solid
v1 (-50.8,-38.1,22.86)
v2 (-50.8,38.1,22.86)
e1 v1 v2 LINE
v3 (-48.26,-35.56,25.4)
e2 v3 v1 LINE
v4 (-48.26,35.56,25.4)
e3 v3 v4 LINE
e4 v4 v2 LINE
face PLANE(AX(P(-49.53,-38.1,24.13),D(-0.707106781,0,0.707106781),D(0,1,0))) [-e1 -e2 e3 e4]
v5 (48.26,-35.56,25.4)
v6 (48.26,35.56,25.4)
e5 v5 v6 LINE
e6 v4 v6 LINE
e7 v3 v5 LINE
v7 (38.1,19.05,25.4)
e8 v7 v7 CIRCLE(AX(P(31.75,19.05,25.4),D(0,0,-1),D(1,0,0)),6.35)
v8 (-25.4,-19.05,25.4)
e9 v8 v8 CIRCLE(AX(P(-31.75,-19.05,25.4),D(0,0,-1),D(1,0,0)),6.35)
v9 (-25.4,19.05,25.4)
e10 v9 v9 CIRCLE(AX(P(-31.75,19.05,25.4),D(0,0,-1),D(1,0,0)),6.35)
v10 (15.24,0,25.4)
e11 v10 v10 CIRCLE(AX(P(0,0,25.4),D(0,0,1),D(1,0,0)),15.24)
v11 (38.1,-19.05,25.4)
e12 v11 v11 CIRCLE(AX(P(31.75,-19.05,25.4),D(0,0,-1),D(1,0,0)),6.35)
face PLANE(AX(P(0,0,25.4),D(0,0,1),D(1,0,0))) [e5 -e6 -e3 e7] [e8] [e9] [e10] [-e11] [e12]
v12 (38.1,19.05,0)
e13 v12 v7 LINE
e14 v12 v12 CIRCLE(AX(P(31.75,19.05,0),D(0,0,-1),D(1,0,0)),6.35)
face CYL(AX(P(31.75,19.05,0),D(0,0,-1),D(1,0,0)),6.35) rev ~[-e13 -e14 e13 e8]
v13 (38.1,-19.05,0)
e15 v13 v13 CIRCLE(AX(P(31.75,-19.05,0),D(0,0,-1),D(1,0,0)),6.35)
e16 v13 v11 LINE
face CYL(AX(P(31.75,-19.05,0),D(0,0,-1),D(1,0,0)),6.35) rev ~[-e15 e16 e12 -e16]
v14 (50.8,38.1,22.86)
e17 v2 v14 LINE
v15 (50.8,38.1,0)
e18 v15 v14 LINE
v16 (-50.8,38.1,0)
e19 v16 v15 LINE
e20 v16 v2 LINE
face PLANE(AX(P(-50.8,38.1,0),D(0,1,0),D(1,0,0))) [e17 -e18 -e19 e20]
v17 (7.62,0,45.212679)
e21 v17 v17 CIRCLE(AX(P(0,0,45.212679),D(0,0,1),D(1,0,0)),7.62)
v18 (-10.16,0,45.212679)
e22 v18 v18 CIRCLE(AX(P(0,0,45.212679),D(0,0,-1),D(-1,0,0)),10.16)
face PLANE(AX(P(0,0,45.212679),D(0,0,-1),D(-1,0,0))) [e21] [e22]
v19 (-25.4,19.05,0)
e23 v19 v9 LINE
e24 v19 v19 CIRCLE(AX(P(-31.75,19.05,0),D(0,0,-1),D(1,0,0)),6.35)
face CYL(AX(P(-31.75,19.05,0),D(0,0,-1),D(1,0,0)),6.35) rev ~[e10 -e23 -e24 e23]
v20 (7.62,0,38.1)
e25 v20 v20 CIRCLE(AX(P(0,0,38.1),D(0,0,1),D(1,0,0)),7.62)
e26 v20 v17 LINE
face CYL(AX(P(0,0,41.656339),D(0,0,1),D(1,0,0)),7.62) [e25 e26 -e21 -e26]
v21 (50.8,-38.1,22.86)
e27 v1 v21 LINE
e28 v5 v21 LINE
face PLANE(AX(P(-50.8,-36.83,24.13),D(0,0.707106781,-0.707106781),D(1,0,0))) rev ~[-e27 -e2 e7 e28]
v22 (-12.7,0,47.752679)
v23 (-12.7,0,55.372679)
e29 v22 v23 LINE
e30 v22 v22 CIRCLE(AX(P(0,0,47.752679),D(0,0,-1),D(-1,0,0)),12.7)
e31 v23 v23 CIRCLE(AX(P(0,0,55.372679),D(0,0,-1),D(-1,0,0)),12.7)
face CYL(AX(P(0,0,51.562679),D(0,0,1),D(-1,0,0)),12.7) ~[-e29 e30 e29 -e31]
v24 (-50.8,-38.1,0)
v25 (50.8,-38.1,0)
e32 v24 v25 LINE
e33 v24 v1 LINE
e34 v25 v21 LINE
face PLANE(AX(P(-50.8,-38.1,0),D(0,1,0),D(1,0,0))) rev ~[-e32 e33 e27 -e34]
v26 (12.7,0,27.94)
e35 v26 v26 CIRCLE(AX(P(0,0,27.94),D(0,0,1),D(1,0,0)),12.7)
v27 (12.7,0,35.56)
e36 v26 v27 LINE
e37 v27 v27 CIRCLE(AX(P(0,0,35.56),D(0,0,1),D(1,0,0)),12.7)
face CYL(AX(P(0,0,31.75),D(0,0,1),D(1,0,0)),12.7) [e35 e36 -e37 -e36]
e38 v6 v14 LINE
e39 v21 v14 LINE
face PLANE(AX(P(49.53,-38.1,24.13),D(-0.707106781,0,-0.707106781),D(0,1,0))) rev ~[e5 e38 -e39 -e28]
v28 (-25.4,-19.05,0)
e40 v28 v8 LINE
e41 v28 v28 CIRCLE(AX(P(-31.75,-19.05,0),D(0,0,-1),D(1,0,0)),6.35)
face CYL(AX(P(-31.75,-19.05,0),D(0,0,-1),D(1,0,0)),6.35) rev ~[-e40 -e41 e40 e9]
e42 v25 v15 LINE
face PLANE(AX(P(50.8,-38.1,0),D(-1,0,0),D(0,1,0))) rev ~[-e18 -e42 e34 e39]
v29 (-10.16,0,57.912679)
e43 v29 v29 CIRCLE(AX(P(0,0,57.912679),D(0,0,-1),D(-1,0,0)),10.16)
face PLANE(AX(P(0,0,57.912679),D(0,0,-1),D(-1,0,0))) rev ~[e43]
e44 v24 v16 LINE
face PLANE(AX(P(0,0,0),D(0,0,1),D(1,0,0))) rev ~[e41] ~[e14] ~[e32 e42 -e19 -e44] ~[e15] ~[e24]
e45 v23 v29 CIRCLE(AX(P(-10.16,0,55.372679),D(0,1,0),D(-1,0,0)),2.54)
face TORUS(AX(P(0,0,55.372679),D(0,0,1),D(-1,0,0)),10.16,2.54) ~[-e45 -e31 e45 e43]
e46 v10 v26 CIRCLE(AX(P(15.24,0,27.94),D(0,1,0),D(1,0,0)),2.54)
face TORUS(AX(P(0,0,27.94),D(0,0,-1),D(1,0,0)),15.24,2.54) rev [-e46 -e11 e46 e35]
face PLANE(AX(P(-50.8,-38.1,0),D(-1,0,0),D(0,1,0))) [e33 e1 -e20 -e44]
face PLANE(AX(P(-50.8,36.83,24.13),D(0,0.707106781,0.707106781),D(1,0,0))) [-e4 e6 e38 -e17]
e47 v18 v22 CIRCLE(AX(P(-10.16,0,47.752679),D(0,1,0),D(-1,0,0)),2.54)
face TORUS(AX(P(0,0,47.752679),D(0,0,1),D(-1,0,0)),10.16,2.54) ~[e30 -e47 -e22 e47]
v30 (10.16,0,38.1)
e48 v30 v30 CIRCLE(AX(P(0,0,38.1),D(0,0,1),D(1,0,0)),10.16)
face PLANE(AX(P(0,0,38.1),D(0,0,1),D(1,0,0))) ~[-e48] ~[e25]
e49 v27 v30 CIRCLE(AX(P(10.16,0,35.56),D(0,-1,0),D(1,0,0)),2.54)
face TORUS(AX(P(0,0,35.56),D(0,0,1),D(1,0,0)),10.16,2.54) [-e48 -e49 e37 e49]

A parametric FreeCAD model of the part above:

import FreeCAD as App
import Part
import Sketcher
from FreeCAD import Vector
Q = App.Units.Quantity


def edges_at(feature, points):
    """Names of the edges that pass closest to the given points."""
    edges = feature.Shape.Edges
    near = lambda p: min(range(len(edges)), key=lambda i: edges[i].distToShape(Part.Vertex(*p))[0])
    return sorted({f"Edge{near(p) + 1}" for p in points})

doc = App.newDocument("Part")
params = doc.addObject("Spreadsheet::Sheet", "Params")
for row, (alias, value) in enumerate([
    ("sketch1_width", "4 in"),
    ("sketch1_height", "3 in"),
    ("pad1_length", "1 in"),
    ("sketch2_diameter", "0.5 in"),
    ("sketch3_width", "0.5 in"),
    ("revolution_angle", "360 deg"),
    ("sketch4_width", "0.3 in"),
    ("revolution2_angle", "360 deg"),
    ("sketch5_width", "0.5 in"),
    ("revolution3_angle", "360 deg"),
    ("fillet_radius", "0.1 in"),
    ("chamfer_size", "0.1 in"),
    ("fillet2_radius", "0.1 in"),
], start=1):
    params.set(f"A{row}", alias)
    params.set(f"B{row}", "=" + value)
    params.setAlias(f"B{row}", alias)

body = doc.addObject("PartDesign::Body", "Body")

# Sketch on XY plane
sketch1 = doc.addObject("Sketcher::SketchObject", "Sketch")
body.addObject(sketch1)
sketch1.AttachmentSupport = (doc.XY_Plane, [""])
sketch1.MapMode = "FlatFace"
sketch1.addGeometry(Part.LineSegment(Vector(-51, 38, 0), Vector(-51, -38, 0)), False)
sketch1.addGeometry(Part.LineSegment(Vector(-51, -38, 0), Vector(51, -38, 0)), False)
sketch1.addGeometry(Part.LineSegment(Vector(51, -38, 0), Vector(51, 38, 0)), False)
sketch1.addGeometry(Part.LineSegment(Vector(51, 38, 0), Vector(-51, 38, 0)), False)
sketch1.addConstraint(Sketcher.Constraint("Coincident", 0, 2, 1, 1))
sketch1.addConstraint(Sketcher.Constraint("Coincident", 1, 2, 2, 1))
sketch1.addConstraint(Sketcher.Constraint("Coincident", 2, 2, 3, 1))
sketch1.addConstraint(Sketcher.Constraint("Coincident", 3, 2, 0, 1))
sketch1.addConstraint(Sketcher.Constraint("Vertical", 0))
sketch1.addConstraint(Sketcher.Constraint("Horizontal", 1))
sketch1.addConstraint(Sketcher.Constraint("Vertical", 2))
sketch1.addConstraint(Sketcher.Constraint("Horizontal", 3))
sketch1.addConstraint(Sketcher.Constraint("Symmetric", 0, 2, 2, 2, -1, 1))
sketch1.addConstraint(Sketcher.Constraint("DistanceX", 1, 1, 1, 2, Q("4 in")))
sketch1.addConstraint(Sketcher.Constraint("DistanceY", 0, 2, 0, 1, Q("3 in")))
sketch1.setExpression("Constraints[9]", "Params.sketch1_width")
sketch1.setExpression("Constraints[10]", "Params.sketch1_height")
pad1 = doc.addObject("PartDesign::Pad", "Pad")
body.addObject(pad1)
pad1.Profile = sketch1
pad1.setExpression("Length", "Params.pad1_length")

# Sketch on XY plane
sketch2 = doc.addObject("Sketcher::SketchObject", "Sketch001")
body.addObject(sketch2)
sketch2.AttachmentSupport = (doc.XY_Plane, [""])
sketch2.MapMode = "FlatFace"
sketch2.addGeometry(Part.Circle(Vector(32, -19, 0), Vector(0, 0, 1), 6), False)
sketch2.addGeometry(Part.Circle(Vector(32, 19, 0), Vector(0, 0, 1), 6), False)
sketch2.addGeometry(Part.Circle(Vector(-32, 19, 0), Vector(0, 0, 1), 6), False)
sketch2.addGeometry(Part.Circle(Vector(-32, -19, 0), Vector(0, 0, 1), 6), False)
sketch2.addConstraint(Sketcher.Constraint("Equal", 0, 1))
sketch2.addConstraint(Sketcher.Constraint("Equal", 1, 2))
sketch2.addConstraint(Sketcher.Constraint("Equal", 2, 3))
sketch2.addConstraint(Sketcher.Constraint("Symmetric", 0, 3, 2, 3, -1, 1))
sketch2.addConstraint(Sketcher.Constraint("Symmetric", 1, 3, 3, 3, -1, 1))
sketch2.addConstraint(Sketcher.Constraint("Symmetric", 1, 3, 2, 3, -2))
sketch2.addConstraint(Sketcher.Constraint("Diameter", 0, Q("0.5 in")))
sketch2.addConstraint(Sketcher.Constraint("DistanceY", 0, 3, 1, 3, Q("1.5 in")))
sketch2.addConstraint(Sketcher.Constraint("DistanceX", 2, 3, 1, 3, Q("2.5 in")))
sketch2.setExpression("Constraints[6]", "Params.sketch2_diameter")
pocket1 = doc.addObject("PartDesign::Pocket", "Pocket")
body.addObject(pocket1)
pocket1.Profile = sketch2
pocket1.Type = "ThroughAll"
pocket1.Reversed = True

# Sketch on XZ plane
sketch3 = doc.addObject("Sketcher::SketchObject", "Sketch002")
body.addObject(sketch3)
sketch3.AttachmentSupport = (doc.XZ_Plane, [""])
sketch3.MapMode = "FlatFace"
sketch3.addGeometry(Part.LineSegment(Vector(0, 38, 0), Vector(0, 25, 0)), False)
sketch3.addGeometry(Part.LineSegment(Vector(0, 25, 0), Vector(13, 25, 0)), False)
sketch3.addGeometry(Part.LineSegment(Vector(13, 25, 0), Vector(13, 38, 0)), False)
sketch3.addGeometry(Part.LineSegment(Vector(13, 38, 0), Vector(0, 38, 0)), False)
sketch3.addConstraint(Sketcher.Constraint("Coincident", 0, 2, 1, 1))
sketch3.addConstraint(Sketcher.Constraint("Coincident", 1, 2, 2, 1))
sketch3.addConstraint(Sketcher.Constraint("Coincident", 2, 2, 3, 1))
sketch3.addConstraint(Sketcher.Constraint("Coincident", 3, 2, 0, 1))
sketch3.addConstraint(Sketcher.Constraint("Vertical", 0))
sketch3.addConstraint(Sketcher.Constraint("Horizontal", 1))
sketch3.addConstraint(Sketcher.Constraint("Vertical", 2))
sketch3.addConstraint(Sketcher.Constraint("Horizontal", 3))
sketch3.addConstraint(Sketcher.Constraint("PointOnObject", 0, 2, -2))
sketch3.addConstraint(Sketcher.Constraint("Equal", 3, 0))
sketch3.addConstraint(Sketcher.Constraint("DistanceX", 1, 1, 1, 2, Q("0.5 in")))
sketch3.addConstraint(Sketcher.Constraint("DistanceY", -1, 1, 0, 2, Q("1 in")))
sketch3.setExpression("Constraints[10]", "Params.sketch3_width")
revolution = doc.addObject("PartDesign::Revolution", "Revolution")
body.addObject(revolution)
revolution.Profile = sketch3
revolution.ReferenceAxis = (sketch3, ["V_Axis"])
revolution.setExpression("Angle", "Params.revolution_angle")

# Sketch on XZ plane
sketch4 = doc.addObject("Sketcher::SketchObject", "Sketch003")
body.addObject(sketch4)
sketch4.AttachmentSupport = (doc.XZ_Plane, [""])
sketch4.MapMode = "FlatFace"
sketch4.addGeometry(Part.LineSegment(Vector(0, 45, 0), Vector(0, 38, 0)), False)
sketch4.addGeometry(Part.LineSegment(Vector(0, 38, 0), Vector(8, 38, 0)), False)
sketch4.addGeometry(Part.LineSegment(Vector(8, 38, 0), Vector(8, 45, 0)), False)
sketch4.addGeometry(Part.LineSegment(Vector(8, 45, 0), Vector(0, 45, 0)), False)
sketch4.addConstraint(Sketcher.Constraint("Coincident", 0, 2, 1, 1))
sketch4.addConstraint(Sketcher.Constraint("Coincident", 1, 2, 2, 1))
sketch4.addConstraint(Sketcher.Constraint("Coincident", 2, 2, 3, 1))
sketch4.addConstraint(Sketcher.Constraint("Coincident", 3, 2, 0, 1))
sketch4.addConstraint(Sketcher.Constraint("Vertical", 0))
sketch4.addConstraint(Sketcher.Constraint("Horizontal", 1))
sketch4.addConstraint(Sketcher.Constraint("Vertical", 2))
sketch4.addConstraint(Sketcher.Constraint("Horizontal", 3))
sketch4.addConstraint(Sketcher.Constraint("PointOnObject", 0, 2, -2))
sketch4.addConstraint(Sketcher.Constraint("DistanceX", 1, 1, 1, 2, Q("0.3 in")))
sketch4.addConstraint(Sketcher.Constraint("DistanceY", -1, 1, 0, 2, Q("1.5 in")))
sketch4.addConstraint(Sketcher.Constraint("DistanceY", 0, 2, 0, 1, Q("7.112679 mm")))
sketch4.setExpression("Constraints[9]", "Params.sketch4_width")
revolution2 = doc.addObject("PartDesign::Revolution", "Revolution001")
body.addObject(revolution2)
revolution2.Profile = sketch4
revolution2.ReferenceAxis = (sketch4, ["V_Axis"])
revolution2.setExpression("Angle", "Params.revolution2_angle")

# Sketch on XZ plane
sketch5 = doc.addObject("Sketcher::SketchObject", "Sketch004")
body.addObject(sketch5)
sketch5.AttachmentSupport = (doc.XZ_Plane, [""])
sketch5.MapMode = "FlatFace"
sketch5.addGeometry(Part.LineSegment(Vector(-13, 58, 0), Vector(-13, 45, 0)), False)
sketch5.addGeometry(Part.LineSegment(Vector(-13, 45, 0), Vector(0, 45, 0)), False)
sketch5.addGeometry(Part.LineSegment(Vector(0, 45, 0), Vector(0, 58, 0)), False)
sketch5.addGeometry(Part.LineSegment(Vector(0, 58, 0), Vector(-13, 58, 0)), False)
sketch5.addConstraint(Sketcher.Constraint("Coincident", 0, 2, 1, 1))
sketch5.addConstraint(Sketcher.Constraint("Coincident", 1, 2, 2, 1))
sketch5.addConstraint(Sketcher.Constraint("Coincident", 2, 2, 3, 1))
sketch5.addConstraint(Sketcher.Constraint("Coincident", 3, 2, 0, 1))
sketch5.addConstraint(Sketcher.Constraint("Vertical", 0))
sketch5.addConstraint(Sketcher.Constraint("Horizontal", 1))
sketch5.addConstraint(Sketcher.Constraint("Vertical", 2))
sketch5.addConstraint(Sketcher.Constraint("Horizontal", 3))
sketch5.addConstraint(Sketcher.Constraint("PointOnObject", 1, 2, -2))
sketch5.addConstraint(Sketcher.Constraint("Equal", 3, 0))
sketch5.addConstraint(Sketcher.Constraint("DistanceX", 1, 1, 1, 2, Q("0.5 in")))
sketch5.addConstraint(Sketcher.Constraint("DistanceY", -1, 1, 0, 2, Q("45.212679 mm")))
sketch5.setExpression("Constraints[10]", "Params.sketch5_width")
revolution3 = doc.addObject("PartDesign::Revolution", "Revolution002")
body.addObject(revolution3)
revolution3.Profile = sketch5
revolution3.ReferenceAxis = (sketch5, ["V_Axis"])
revolution3.setExpression("Angle", "Params.revolution3_angle")
doc.recompute()

fillet = doc.addObject("PartDesign::Fillet", "Fillet")
body.addObject(fillet)
fillet.Base = (revolution3, edges_at(revolution3, [(12.7, 0, 57.913)]))
fillet.setExpression("Radius", "Params.fillet_radius")
doc.recompute()

chamfer = doc.addObject("PartDesign::Chamfer", "Chamfer")
body.addObject(chamfer)
chamfer.Base = (fillet, edges_at(fillet, [
    (0, -38.1, 25.4),
    (-50.8, 0, 25.4),
    (0, 38.1, 25.4),
    (50.8, 0, 25.4),
]))
chamfer.setExpression("Size", "Params.chamfer_size")
doc.recompute()

fillet2 = doc.addObject("PartDesign::Fillet", "Fillet001")
body.addObject(fillet2)
fillet2.Base = (chamfer, edges_at(chamfer, [(-12.7, 0, 25.4), (-12.7, 0, 38.1), (12.7, 0, 45.213)]))
fillet2.setExpression("Radius", "Params.fillet2_radius")

doc.recompute()
